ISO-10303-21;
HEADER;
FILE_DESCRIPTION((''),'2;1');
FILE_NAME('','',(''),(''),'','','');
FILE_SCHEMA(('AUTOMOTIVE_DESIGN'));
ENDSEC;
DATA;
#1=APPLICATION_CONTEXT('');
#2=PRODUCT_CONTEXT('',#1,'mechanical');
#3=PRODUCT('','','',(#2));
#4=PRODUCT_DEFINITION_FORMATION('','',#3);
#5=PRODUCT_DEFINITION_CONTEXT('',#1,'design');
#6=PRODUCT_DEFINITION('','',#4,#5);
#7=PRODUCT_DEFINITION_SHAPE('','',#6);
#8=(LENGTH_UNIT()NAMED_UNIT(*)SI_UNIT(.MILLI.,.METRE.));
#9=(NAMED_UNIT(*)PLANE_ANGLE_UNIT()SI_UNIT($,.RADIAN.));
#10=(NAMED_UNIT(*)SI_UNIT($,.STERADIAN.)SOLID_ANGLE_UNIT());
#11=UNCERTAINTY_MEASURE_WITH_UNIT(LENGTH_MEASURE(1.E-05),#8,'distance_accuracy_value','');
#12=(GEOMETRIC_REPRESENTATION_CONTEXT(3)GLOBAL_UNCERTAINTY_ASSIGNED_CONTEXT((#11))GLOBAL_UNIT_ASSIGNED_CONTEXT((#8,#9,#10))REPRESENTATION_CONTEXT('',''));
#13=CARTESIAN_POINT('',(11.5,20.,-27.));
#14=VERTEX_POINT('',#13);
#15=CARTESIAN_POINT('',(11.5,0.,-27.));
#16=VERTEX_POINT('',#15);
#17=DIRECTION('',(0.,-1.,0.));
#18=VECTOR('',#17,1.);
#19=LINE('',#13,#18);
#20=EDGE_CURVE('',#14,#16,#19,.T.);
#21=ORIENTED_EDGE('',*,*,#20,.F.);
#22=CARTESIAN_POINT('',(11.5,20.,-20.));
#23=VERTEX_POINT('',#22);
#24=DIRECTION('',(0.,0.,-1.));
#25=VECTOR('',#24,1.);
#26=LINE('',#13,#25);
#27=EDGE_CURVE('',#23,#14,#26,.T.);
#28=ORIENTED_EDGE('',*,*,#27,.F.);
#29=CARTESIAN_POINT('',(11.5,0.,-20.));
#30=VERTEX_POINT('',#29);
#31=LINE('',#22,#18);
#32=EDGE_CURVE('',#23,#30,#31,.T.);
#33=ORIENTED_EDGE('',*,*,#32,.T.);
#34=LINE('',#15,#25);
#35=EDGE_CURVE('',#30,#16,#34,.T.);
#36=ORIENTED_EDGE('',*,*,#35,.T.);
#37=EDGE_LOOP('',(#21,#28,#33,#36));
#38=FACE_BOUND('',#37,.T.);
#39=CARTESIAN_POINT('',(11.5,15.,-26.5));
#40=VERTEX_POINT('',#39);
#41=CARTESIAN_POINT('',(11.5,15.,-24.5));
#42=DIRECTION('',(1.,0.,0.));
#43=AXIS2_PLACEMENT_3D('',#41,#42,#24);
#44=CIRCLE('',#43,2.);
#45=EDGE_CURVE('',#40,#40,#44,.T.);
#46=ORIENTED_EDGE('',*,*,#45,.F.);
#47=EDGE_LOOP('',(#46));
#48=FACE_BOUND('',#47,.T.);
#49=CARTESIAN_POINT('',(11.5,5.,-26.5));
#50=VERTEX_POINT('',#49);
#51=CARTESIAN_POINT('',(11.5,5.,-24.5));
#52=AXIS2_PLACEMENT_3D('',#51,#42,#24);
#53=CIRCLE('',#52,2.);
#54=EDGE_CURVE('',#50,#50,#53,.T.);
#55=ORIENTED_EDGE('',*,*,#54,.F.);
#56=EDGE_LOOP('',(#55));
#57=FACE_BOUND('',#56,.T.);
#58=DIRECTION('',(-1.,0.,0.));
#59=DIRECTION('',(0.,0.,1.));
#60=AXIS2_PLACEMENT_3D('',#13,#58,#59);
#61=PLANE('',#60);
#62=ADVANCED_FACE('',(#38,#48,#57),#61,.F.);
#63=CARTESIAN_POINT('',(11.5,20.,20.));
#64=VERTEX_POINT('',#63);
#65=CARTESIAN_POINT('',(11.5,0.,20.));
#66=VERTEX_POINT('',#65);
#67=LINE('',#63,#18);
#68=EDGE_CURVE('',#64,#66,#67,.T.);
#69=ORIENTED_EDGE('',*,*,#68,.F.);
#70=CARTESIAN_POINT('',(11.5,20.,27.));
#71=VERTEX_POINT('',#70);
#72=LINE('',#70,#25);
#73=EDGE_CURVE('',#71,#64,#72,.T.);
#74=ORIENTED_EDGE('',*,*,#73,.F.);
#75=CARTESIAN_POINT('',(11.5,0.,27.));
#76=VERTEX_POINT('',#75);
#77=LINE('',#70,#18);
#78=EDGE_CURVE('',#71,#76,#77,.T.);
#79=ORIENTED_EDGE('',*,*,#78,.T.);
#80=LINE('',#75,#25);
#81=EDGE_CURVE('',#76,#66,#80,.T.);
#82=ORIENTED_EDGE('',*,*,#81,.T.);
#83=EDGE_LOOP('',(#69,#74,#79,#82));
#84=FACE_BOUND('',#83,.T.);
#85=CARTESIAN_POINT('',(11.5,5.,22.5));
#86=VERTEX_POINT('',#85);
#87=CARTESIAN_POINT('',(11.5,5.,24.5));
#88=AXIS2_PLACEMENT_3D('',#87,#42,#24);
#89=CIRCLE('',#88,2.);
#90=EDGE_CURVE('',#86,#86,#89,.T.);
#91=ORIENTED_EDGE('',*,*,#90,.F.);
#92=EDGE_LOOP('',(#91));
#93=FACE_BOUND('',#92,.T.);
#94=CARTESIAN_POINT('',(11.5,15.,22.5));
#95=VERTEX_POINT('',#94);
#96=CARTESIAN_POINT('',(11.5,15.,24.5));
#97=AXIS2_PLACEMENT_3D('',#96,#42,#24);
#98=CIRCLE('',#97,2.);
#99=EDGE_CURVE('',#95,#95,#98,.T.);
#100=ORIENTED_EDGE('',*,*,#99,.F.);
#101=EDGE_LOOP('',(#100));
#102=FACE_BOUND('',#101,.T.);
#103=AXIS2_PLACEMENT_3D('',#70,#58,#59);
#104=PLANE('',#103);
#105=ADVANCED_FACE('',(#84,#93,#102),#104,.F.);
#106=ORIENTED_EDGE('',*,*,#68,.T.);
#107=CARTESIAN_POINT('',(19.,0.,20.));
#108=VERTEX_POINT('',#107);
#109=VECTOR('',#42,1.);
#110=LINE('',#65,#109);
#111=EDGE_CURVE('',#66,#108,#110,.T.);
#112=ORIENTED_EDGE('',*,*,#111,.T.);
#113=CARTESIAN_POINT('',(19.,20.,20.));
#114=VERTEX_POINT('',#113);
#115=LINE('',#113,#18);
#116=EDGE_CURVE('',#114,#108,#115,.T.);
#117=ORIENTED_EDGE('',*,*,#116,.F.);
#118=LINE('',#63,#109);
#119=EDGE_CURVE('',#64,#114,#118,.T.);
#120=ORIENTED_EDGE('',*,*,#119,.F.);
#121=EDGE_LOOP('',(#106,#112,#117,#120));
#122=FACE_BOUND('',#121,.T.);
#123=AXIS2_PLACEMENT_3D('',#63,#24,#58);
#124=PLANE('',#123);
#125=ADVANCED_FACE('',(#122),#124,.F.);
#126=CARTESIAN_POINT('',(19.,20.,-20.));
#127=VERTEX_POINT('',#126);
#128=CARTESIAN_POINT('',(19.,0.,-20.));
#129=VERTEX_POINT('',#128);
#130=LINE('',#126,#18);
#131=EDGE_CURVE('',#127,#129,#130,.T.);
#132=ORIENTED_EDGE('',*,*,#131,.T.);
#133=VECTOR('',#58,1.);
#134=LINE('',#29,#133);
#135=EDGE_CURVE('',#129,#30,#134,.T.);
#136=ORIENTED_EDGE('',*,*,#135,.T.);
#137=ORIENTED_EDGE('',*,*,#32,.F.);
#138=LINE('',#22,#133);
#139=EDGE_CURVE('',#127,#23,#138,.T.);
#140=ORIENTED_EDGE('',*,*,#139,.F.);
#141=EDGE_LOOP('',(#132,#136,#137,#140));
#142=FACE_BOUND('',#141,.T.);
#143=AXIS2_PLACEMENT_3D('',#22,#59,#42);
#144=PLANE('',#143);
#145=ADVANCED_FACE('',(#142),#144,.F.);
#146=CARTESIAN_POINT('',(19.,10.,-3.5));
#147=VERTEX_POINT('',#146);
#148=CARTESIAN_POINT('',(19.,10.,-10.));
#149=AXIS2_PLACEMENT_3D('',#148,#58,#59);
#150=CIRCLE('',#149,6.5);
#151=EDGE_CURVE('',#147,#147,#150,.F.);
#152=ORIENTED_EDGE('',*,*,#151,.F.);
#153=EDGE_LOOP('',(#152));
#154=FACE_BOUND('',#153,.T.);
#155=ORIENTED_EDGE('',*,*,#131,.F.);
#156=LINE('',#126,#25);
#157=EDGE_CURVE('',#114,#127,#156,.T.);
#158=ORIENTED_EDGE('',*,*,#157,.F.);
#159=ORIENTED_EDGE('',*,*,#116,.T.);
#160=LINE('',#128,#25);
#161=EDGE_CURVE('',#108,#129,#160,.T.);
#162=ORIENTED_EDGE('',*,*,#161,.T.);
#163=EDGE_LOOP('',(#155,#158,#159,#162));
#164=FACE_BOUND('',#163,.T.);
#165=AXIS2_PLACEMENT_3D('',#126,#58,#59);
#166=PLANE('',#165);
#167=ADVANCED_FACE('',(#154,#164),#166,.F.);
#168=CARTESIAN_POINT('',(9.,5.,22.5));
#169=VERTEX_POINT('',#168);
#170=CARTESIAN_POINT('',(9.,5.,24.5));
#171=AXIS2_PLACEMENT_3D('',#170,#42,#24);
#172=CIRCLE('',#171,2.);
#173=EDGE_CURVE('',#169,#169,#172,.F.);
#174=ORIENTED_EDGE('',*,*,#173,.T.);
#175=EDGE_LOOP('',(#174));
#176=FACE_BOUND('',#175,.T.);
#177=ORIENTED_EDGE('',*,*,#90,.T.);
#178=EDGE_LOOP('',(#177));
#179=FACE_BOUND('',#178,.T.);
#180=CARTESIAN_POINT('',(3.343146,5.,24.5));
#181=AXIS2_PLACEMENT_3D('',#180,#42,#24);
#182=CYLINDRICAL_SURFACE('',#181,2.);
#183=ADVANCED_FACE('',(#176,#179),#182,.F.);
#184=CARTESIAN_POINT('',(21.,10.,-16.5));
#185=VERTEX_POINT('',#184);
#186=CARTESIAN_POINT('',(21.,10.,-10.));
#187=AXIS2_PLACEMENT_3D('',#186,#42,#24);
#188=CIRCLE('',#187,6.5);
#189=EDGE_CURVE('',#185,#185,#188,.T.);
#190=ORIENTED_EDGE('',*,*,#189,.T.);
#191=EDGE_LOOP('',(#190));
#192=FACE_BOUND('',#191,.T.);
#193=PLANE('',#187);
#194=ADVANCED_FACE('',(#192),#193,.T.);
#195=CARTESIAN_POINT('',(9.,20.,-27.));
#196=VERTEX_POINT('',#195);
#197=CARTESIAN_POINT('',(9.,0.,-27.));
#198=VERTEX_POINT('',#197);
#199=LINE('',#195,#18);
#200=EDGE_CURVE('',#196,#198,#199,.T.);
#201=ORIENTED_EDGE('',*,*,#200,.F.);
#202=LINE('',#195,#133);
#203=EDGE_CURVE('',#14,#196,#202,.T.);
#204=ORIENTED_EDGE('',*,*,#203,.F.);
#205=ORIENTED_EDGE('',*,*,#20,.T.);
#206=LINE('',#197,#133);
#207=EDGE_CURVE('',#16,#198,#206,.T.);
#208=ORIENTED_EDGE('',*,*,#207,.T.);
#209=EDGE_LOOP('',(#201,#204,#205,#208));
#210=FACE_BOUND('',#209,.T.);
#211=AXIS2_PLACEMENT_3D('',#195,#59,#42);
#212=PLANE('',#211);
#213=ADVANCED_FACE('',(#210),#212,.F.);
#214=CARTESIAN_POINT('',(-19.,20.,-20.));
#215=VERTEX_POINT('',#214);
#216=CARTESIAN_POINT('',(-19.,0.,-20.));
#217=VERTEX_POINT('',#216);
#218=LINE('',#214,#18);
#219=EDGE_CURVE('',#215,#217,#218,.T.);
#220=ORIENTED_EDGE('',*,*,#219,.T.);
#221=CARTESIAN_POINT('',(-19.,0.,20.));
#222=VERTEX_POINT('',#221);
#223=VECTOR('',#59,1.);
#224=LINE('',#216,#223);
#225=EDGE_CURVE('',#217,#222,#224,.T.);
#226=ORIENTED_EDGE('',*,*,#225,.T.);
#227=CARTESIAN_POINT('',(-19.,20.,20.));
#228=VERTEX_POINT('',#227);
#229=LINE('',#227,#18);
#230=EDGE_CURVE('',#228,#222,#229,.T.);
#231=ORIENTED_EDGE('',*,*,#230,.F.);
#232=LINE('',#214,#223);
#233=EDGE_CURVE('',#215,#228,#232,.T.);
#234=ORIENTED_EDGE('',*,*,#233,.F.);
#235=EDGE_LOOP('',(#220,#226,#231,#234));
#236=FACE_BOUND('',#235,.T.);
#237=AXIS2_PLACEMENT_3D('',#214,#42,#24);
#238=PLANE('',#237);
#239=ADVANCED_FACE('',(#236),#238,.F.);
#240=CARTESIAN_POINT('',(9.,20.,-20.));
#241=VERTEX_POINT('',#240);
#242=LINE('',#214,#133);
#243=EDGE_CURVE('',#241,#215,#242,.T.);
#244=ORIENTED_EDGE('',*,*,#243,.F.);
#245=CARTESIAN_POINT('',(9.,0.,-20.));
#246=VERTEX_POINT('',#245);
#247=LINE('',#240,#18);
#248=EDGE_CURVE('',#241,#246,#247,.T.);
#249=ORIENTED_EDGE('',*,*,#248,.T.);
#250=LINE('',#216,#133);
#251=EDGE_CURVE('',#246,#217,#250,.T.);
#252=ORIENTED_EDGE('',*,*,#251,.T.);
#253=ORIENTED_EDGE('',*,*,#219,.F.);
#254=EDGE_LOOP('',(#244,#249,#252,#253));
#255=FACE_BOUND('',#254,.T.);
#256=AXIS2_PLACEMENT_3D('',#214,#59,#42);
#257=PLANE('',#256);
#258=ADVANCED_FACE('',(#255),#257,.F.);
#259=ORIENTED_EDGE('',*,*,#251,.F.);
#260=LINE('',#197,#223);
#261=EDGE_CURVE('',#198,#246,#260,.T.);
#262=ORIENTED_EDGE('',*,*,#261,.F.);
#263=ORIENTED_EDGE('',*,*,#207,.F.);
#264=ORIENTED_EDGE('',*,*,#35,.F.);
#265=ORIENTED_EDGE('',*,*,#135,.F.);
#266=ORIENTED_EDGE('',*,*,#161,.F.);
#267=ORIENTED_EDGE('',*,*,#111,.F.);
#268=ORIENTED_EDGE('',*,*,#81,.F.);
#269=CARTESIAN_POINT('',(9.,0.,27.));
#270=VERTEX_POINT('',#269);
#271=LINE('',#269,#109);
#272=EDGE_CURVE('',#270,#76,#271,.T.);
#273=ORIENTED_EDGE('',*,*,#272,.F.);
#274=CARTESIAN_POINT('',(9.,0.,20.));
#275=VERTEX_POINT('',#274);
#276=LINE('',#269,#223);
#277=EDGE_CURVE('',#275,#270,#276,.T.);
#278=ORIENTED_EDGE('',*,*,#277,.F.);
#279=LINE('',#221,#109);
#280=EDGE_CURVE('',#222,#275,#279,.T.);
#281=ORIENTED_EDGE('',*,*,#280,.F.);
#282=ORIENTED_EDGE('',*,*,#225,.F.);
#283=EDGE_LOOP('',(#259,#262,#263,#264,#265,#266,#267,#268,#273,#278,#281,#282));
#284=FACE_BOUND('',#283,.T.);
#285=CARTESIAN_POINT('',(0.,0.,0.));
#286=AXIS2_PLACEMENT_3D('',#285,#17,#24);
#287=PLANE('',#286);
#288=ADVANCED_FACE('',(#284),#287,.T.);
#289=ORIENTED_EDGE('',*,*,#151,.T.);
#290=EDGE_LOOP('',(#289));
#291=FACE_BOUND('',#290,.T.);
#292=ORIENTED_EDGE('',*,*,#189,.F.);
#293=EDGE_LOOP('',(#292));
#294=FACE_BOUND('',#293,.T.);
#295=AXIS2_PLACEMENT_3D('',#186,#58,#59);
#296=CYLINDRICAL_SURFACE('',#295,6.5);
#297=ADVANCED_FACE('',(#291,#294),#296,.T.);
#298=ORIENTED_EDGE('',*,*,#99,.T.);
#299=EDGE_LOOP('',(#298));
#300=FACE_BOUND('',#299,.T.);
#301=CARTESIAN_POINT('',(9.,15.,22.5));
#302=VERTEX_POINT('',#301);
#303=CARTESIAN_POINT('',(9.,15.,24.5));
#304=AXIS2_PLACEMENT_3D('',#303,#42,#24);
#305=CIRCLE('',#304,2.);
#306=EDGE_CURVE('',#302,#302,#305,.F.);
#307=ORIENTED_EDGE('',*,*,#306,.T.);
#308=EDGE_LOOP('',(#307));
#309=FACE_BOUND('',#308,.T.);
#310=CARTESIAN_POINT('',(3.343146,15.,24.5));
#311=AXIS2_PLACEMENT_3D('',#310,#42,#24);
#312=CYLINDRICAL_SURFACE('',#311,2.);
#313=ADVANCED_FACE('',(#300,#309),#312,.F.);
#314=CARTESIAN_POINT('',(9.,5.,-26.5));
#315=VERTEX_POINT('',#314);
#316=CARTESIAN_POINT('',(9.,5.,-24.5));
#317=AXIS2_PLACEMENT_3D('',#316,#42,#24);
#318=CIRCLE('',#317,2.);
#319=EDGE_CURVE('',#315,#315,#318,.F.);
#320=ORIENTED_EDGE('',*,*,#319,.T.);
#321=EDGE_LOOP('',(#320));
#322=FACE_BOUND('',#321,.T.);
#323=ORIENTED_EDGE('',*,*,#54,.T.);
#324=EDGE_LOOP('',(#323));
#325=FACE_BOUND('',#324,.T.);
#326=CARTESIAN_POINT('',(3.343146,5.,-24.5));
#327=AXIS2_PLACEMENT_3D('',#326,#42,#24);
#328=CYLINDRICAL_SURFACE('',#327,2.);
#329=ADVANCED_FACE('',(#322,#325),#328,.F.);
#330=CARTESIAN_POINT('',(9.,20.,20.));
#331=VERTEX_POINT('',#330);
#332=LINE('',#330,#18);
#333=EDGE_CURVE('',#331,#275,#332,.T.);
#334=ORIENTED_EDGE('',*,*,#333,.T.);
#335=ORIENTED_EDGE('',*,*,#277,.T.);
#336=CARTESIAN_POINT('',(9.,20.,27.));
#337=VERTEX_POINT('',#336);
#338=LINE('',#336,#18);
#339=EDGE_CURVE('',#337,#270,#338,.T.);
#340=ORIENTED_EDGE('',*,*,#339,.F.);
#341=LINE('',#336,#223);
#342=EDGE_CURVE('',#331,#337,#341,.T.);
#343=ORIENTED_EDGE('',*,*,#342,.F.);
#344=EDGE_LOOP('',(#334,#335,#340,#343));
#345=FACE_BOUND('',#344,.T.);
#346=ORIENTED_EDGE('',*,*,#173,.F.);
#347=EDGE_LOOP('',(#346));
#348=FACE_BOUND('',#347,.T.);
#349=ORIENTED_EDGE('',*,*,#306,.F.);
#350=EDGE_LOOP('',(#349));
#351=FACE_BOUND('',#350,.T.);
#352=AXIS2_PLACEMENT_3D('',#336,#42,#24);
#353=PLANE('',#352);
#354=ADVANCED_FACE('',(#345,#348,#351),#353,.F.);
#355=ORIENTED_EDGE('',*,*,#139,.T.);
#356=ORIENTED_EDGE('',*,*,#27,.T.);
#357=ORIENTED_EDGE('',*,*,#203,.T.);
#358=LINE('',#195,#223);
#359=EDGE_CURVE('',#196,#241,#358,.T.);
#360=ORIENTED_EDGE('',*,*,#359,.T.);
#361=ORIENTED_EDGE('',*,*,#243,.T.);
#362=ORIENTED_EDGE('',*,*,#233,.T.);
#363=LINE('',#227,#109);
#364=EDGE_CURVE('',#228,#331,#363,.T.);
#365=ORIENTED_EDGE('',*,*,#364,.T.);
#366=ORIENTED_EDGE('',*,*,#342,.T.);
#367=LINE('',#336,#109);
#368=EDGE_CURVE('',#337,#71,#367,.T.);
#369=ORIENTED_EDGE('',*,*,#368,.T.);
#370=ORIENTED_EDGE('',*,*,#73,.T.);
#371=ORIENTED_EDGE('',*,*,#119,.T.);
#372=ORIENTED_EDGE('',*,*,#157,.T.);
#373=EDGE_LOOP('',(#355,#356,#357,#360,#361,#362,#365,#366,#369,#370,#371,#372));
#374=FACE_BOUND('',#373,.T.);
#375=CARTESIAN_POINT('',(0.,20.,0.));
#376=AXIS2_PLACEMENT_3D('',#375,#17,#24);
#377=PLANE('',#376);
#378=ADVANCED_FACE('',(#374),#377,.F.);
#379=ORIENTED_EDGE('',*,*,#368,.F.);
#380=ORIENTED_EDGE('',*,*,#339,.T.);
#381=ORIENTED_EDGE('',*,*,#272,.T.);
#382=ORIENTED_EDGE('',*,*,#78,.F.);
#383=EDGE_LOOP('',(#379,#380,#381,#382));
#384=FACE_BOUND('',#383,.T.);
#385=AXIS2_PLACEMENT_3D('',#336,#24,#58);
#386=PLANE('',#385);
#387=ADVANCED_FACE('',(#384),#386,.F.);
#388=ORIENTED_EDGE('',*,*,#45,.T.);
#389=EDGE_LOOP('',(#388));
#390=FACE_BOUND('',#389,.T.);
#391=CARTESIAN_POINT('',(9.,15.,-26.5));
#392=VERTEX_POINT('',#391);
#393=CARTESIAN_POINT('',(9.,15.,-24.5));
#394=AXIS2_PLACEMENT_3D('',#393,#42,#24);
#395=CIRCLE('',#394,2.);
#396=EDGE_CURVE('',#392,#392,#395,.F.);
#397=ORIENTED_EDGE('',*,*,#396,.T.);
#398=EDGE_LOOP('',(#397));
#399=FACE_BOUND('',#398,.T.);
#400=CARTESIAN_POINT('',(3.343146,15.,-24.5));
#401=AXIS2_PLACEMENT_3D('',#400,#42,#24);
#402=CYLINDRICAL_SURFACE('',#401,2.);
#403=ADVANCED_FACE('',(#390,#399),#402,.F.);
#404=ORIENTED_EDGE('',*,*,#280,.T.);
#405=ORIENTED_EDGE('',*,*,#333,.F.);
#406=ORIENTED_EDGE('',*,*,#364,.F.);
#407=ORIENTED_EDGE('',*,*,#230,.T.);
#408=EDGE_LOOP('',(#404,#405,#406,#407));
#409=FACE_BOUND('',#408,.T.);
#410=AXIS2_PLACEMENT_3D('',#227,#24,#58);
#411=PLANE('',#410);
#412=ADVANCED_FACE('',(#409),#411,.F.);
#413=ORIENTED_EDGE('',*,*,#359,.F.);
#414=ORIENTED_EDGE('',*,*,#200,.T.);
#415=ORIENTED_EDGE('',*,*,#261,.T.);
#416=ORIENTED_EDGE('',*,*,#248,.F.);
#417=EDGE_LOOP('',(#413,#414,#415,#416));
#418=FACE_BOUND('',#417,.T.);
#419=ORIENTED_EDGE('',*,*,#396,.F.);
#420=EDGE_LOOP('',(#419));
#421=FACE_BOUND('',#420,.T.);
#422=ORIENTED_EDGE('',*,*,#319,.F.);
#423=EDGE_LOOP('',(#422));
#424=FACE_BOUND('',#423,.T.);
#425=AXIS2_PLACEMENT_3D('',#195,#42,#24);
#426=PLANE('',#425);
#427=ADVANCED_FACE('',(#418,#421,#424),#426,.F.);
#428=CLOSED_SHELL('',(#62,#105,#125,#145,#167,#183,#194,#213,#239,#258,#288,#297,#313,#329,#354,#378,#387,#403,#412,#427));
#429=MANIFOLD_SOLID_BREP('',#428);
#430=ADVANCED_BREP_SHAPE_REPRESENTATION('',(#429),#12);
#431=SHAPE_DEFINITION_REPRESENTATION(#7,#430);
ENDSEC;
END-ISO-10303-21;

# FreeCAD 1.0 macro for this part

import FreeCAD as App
import Part
import Sketcher

V = App.Vector
Q = App.Units.Quantity


def add_polygon(sketch, points):
    """Adds a closed chain of lines whose ends are joined by coincident constraints."""
    first, n = sketch.GeometryCount, len(points)
    for a, b in zip(points, points[1:] + points[:1]):
        sketch.addGeometry(Part.LineSegment(App.Vector(*a, 0), App.Vector(*b, 0)), False)
    for i in range(n):
        sketch.addConstraint(Sketcher.Constraint("Coincident", first + i, 2, first + (i + 1) % n, 1))

doc = App.newDocument("Part")
body = doc.addObject("PartDesign::Body", "Body")

# Sketch on XZ plane
sketch1 = body.newObject("Sketcher::SketchObject", "Sketch")
sketch1.AttachmentSupport = (doc.getObject("XZ_Plane"), [""])
sketch1.MapMode = "FlatFace"
add_polygon(sketch1, [(19, -20), (11.5, -20), (11.5, -27), (9, -27), (9, -20), (-19, -20), (-19, 20), (9, 20), (9, 27), (11.5, 27), (11.5, 20), (19, 20)])  # lines 0-11
sketch1.addConstraint([
    Sketcher.Constraint("Horizontal", 0),
    Sketcher.Constraint("Vertical", 1),
    Sketcher.Constraint("Horizontal", 2),
    Sketcher.Constraint("Vertical", 3),
    Sketcher.Constraint("Horizontal", 4),
    Sketcher.Constraint("Vertical", 5),
    Sketcher.Constraint("Horizontal", 6),
    Sketcher.Constraint("Vertical", 7),
    Sketcher.Constraint("Horizontal", 8),
    Sketcher.Constraint("Vertical", 9),
    Sketcher.Constraint("Horizontal", 10),
    Sketcher.Constraint("Vertical", 11),
    Sketcher.Constraint("Symmetric", 4, 2, 10, 2, -1, 1),
    Sketcher.Constraint("Symmetric", 3, 2, 6, 2, -1),
    Sketcher.Constraint("Symmetric", 1, 2, 8, 2, -1),
    Sketcher.Constraint("Horizontal", 0, 2, 3, 2),
    Sketcher.Constraint("DistanceX", 4, 2, 4, 1, Q("28 mm")),
    Sketcher.Constraint("DistanceY", 1, 2, 1, 1, Q("7 mm")),
    Sketcher.Constraint("DistanceY", 5, 1, 5, 2, Q("40 mm")),
    Sketcher.Constraint("DistanceX", 0, 2, 0, 1, Q("7.5 mm")),
    Sketcher.Constraint("DistanceX", 2, 2, 2, 1, Q("2.5 mm")),
])
pad1 = body.newObject("PartDesign::Pad", "Pad")
pad1.Profile = sketch1
pad1.Length = 20
pad1.Reversed = True

# Sketch on YZ plane
sketch2 = body.newObject("Sketcher::SketchObject", "Sketch001")
sketch2.AttachmentSupport = (doc.getObject("YZ_Plane"), [""])
sketch2.MapMode = "FlatFace"
sketch2.AttachmentOffset = App.Placement(V(0, 0, 11.5), App.Rotation())
sketch2.addGeometry([
    Part.Circle(V(15, 24.5, 0), V(0, 0, 1), 2),
    Part.Circle(V(5, 24.5, 0), V(0, 0, 1), 2),
    Part.Circle(V(5, -24.5, 0), V(0, 0, 1), 2),
    Part.Circle(V(15, -24.5, 0), V(0, 0, 1), 2),
], False)
sketch2.addConstraint([
    Sketcher.Constraint("Equal", 0, 1),
    Sketcher.Constraint("Equal", 1, 2),
    Sketcher.Constraint("Equal", 2, 3),
    Sketcher.Constraint("Symmetric", 1, 3, 2, 3, -1),
    Sketcher.Constraint("Symmetric", 0, 3, 3, 3, -1),
    Sketcher.Constraint("Horizontal", 0, 3, 1, 3),
    Sketcher.Constraint("Diameter", 0, Q("4 mm")),
    Sketcher.Constraint("DistanceX", -1, 1, 0, 3, Q("15 mm")),
    Sketcher.Constraint("DistanceX", -1, 1, 1, 3, Q("5 mm")),
    Sketcher.Constraint("DistanceY", 2, 3, 1, 3, Q("49 mm")),
])
pocket1 = body.newObject("PartDesign::Pocket", "Pocket")
pocket1.Profile = sketch2
pocket1.Length = 2.5

# Sketch on YZ plane
sketch3 = body.newObject("Sketcher::SketchObject", "Sketch002")
sketch3.AttachmentSupport = (doc.getObject("YZ_Plane"), [""])
sketch3.MapMode = "FlatFace"
sketch3.AttachmentOffset = App.Placement(V(0, 0, 19), App.Rotation())
sketch3.addGeometry(Part.Circle(V(10, -10, 0), V(0, 0, 1), 6), False)
sketch3.addConstraint([
    Sketcher.Constraint("Diameter", 0, Q("13 mm")),
    Sketcher.Constraint("DistanceX", -1, 1, 0, 3, Q("10 mm")),
    Sketcher.Constraint("DistanceY", 0, 3, -1, 1, Q("10 mm")),
])
pad2 = body.newObject("PartDesign::Pad", "Pad001")
pad2.Profile = sketch3
pad2.Length = 2

doc.recompute()
